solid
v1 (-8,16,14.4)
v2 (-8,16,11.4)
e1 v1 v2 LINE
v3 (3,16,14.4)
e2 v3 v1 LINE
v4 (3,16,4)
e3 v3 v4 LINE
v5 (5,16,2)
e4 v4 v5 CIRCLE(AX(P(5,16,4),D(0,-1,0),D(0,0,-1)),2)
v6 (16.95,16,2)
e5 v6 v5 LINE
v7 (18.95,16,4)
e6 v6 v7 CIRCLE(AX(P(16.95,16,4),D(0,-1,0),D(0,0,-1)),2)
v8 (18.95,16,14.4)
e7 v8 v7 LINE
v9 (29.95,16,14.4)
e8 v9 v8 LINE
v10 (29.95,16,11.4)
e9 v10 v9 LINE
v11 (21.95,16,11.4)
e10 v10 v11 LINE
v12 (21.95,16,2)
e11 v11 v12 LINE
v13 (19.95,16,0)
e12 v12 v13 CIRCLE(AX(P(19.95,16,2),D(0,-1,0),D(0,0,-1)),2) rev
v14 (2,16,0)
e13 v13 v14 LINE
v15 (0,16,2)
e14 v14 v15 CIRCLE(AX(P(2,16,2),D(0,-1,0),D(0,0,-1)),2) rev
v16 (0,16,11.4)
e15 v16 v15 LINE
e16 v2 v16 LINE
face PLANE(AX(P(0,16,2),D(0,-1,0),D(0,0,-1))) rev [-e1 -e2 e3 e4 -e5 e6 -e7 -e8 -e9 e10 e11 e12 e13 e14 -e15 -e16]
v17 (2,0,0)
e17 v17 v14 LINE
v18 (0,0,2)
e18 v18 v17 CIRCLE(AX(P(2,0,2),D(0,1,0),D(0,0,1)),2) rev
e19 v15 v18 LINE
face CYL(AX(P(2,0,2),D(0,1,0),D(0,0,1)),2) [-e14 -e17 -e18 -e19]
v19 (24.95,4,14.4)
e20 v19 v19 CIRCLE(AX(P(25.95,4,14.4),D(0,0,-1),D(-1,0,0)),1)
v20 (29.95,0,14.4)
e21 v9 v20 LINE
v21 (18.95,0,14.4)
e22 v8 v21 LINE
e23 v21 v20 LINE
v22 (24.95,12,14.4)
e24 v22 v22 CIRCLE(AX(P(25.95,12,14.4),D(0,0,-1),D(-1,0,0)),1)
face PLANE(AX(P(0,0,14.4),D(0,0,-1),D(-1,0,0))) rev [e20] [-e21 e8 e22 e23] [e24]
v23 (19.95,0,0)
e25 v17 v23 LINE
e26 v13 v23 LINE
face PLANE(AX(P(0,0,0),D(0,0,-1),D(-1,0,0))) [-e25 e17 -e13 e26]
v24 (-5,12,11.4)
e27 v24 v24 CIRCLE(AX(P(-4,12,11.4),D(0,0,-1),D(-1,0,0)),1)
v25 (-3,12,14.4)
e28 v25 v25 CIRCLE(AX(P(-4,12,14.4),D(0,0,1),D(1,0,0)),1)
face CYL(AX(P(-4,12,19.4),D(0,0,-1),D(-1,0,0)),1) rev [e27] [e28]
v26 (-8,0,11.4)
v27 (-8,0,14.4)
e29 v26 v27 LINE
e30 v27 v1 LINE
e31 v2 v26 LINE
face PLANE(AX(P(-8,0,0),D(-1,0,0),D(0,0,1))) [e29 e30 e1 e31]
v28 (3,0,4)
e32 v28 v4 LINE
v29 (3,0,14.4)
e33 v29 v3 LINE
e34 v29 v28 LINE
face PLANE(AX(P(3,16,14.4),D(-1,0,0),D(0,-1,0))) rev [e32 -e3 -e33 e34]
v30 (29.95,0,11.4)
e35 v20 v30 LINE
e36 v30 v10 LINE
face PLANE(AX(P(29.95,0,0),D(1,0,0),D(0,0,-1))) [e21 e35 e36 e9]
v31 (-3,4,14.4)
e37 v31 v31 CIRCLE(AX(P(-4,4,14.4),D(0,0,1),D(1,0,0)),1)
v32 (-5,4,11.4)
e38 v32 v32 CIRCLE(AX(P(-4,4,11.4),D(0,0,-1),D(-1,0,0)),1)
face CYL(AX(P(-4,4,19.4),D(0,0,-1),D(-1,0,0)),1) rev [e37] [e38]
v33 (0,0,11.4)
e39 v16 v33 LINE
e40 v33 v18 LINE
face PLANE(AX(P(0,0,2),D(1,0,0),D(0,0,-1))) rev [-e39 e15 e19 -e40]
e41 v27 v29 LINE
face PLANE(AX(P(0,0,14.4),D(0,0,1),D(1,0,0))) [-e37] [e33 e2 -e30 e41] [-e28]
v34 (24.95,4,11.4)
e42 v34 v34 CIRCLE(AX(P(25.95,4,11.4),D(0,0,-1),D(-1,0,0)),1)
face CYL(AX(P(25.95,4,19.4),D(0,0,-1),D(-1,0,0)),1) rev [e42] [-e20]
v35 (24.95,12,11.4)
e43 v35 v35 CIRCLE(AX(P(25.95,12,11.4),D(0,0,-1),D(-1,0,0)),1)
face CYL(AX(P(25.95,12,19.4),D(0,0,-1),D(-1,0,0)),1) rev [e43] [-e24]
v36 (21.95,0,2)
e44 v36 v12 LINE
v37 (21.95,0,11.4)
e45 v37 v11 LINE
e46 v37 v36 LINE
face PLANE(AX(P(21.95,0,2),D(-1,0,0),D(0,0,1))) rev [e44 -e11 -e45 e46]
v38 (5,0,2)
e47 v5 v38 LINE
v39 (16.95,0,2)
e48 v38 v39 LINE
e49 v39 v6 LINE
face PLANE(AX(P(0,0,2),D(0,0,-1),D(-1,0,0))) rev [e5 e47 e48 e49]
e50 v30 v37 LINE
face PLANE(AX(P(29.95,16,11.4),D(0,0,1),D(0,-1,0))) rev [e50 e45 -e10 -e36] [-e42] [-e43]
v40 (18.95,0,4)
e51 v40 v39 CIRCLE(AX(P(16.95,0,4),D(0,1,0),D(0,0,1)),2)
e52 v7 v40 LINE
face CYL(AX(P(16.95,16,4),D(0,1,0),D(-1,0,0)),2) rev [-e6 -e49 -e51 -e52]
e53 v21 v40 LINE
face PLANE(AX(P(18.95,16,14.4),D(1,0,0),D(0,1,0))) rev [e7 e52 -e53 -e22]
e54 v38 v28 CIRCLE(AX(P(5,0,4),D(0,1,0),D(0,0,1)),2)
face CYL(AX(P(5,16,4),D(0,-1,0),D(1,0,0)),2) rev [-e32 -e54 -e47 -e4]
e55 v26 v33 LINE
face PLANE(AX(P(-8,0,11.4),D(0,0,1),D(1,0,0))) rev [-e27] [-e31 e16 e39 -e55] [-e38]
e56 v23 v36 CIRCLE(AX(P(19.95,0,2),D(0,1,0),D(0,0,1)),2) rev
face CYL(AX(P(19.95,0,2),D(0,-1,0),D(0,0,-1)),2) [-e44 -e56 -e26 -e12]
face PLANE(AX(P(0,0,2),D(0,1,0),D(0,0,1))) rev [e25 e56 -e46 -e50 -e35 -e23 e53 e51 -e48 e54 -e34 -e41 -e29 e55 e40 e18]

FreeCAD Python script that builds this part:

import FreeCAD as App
import Part
import Sketcher
Q = App.Units.Quantity


def edges_at(feature, points):
    """Names of the edges that pass closest to the given points."""
    edges = feature.Shape.Edges
    near = lambda p: min(range(len(edges)), key=lambda i: edges[i].distToShape(Part.Vertex(*p))[0])
    return sorted({f"Edge{near(p) + 1}" for p in points})

doc = App.newDocument("Part")
body = doc.addObject("PartDesign::Body", "Body")

# Sketch on XY plane
sketch1 = doc.addObject("Sketcher::SketchObject", "Sketch")
body.addObject(sketch1)
sketch1.AttachmentSupport = (doc.XY_Plane, [""])
sketch1.MapMode = "FlatFace"
sketch1.addGeometry([
    Part.LineSegment(App.Vector(0, 16, 0), App.Vector(0, 0, 0)),
    Part.LineSegment(App.Vector(0, 0, 0), App.Vector(22, 0, 0)),
    Part.LineSegment(App.Vector(22, 0, 0), App.Vector(22, 16, 0)),
    Part.LineSegment(App.Vector(22, 16, 0), App.Vector(0, 16, 0)),
], False)
sketch1.addConstraint([
    Sketcher.Constraint("Coincident", 0, 2, 1, 1),
    Sketcher.Constraint("Coincident", 1, 2, 2, 1),
    Sketcher.Constraint("Coincident", 2, 2, 3, 1),
    Sketcher.Constraint("Coincident", 3, 2, 0, 1),
    Sketcher.Constraint("Vertical", 0),
    Sketcher.Constraint("Horizontal", 1),
    Sketcher.Constraint("Vertical", 2),
    Sketcher.Constraint("Horizontal", 3),
    Sketcher.Constraint("Coincident", 0, 2, -1, 1),
    Sketcher.Constraint("DistanceY", 0, 2, 0, 1, Q("16 mm")),
    Sketcher.Constraint("DistanceX", 1, 1, 1, 2, Q("21.95 mm")),
])
pad1 = doc.addObject("PartDesign::Pad", "Pad")
body.addObject(pad1)
pad1.Profile = sketch1
pad1.Length = 2

# Sketch on XY plane
sketch2 = doc.addObject("Sketcher::SketchObject", "Sketch001")
body.addObject(sketch2)
sketch2.AttachmentSupport = (doc.XY_Plane, [""])
sketch2.MapMode = "FlatFace"
sketch2.AttachmentOffset = App.Placement(App.Vector(0, 0, 2), App.Rotation())
sketch2.addGeometry([
    Part.LineSegment(App.Vector(0, 16, 0), App.Vector(0, 0, 0)),  # 0
    Part.LineSegment(App.Vector(0, 0, 0), App.Vector(3, 0, 0)),  # 1
    Part.LineSegment(App.Vector(3, 0, 0), App.Vector(3, 16, 0)),  # 2
    Part.LineSegment(App.Vector(3, 16, 0), App.Vector(0, 16, 0)),  # 3
    Part.LineSegment(App.Vector(18.9, 16, 0), App.Vector(18.9, 0, 0)),  # 4
    Part.LineSegment(App.Vector(18.9, 0, 0), App.Vector(21.9, 0, 0)),  # 5
    Part.LineSegment(App.Vector(21.9, 0, 0), App.Vector(21.9, 16, 0)),  # 6
    Part.LineSegment(App.Vector(21.9, 16, 0), App.Vector(18.9, 16, 0)),  # 7
], False)
sketch2.addConstraint([
    Sketcher.Constraint("Coincident", 0, 2, 1, 1),
    Sketcher.Constraint("Coincident", 1, 2, 2, 1),
    Sketcher.Constraint("Coincident", 2, 2, 3, 1),
    Sketcher.Constraint("Coincident", 3, 2, 0, 1),
    Sketcher.Constraint("Coincident", 4, 2, 5, 1),
    Sketcher.Constraint("Coincident", 5, 2, 6, 1),
    Sketcher.Constraint("Coincident", 6, 2, 7, 1),
    Sketcher.Constraint("Coincident", 7, 2, 4, 1),
    Sketcher.Constraint("Vertical", 0),
    Sketcher.Constraint("Horizontal", 1),
    Sketcher.Constraint("Vertical", 2),
    Sketcher.Constraint("Horizontal", 3),
    Sketcher.Constraint("Vertical", 4),
    Sketcher.Constraint("Horizontal", 5),
    Sketcher.Constraint("Vertical", 6),
    Sketcher.Constraint("Horizontal", 7),
    Sketcher.Constraint("Coincident", 0, 2, -1, 1),
    Sketcher.Constraint("PointOnObject", 4, 2, -1),
    Sketcher.Constraint("Horizontal", 3, 2, 6, 2),
    Sketcher.Constraint("Equal", 3, 5),
    Sketcher.Constraint("DistanceX", 1, 1, 1, 2, Q("3 mm")),
    Sketcher.Constraint("DistanceY", 0, 2, 0, 1, Q("16 mm")),
    Sketcher.Constraint("DistanceX", -1, 1, 4, 2, Q("18.95 mm")),
])
pad2 = doc.addObject("PartDesign::Pad", "Pad001")
body.addObject(pad2)
pad2.Profile = sketch2
pad2.Length = 12.4

# Sketch on YZ plane
sketch3 = doc.addObject("Sketcher::SketchObject", "Sketch002")
body.addObject(sketch3)
sketch3.AttachmentSupport = (doc.YZ_Plane, [""])
sketch3.MapMode = "FlatFace"
sketch3.AttachmentOffset = App.Placement(App.Vector(0, 0, 21.95), App.Rotation())
sketch3.addGeometry([
    Part.LineSegment(App.Vector(16, 14.4, 0), App.Vector(0, 14.4, 0)),
    Part.LineSegment(App.Vector(0, 14.4, 0), App.Vector(0, 11.4, 0)),
    Part.LineSegment(App.Vector(0, 11.4, 0), App.Vector(16, 11.4, 0)),
    Part.LineSegment(App.Vector(16, 11.4, 0), App.Vector(16, 14.4, 0)),
], False)
sketch3.addConstraint([
    Sketcher.Constraint("Coincident", 0, 2, 1, 1),
    Sketcher.Constraint("Coincident", 1, 2, 2, 1),
    Sketcher.Constraint("Coincident", 2, 2, 3, 1),
    Sketcher.Constraint("Coincident", 3, 2, 0, 1),
    Sketcher.Constraint("Horizontal", 0),
    Sketcher.Constraint("Vertical", 1),
    Sketcher.Constraint("Horizontal", 2),
    Sketcher.Constraint("Vertical", 3),
    Sketcher.Constraint("PointOnObject", 0, 2, -2),
    Sketcher.Constraint("DistanceX", 0, 2, 0, 1, Q("16 mm")),
    Sketcher.Constraint("DistanceY", 1, 2, 1, 1, Q("3 mm")),
    Sketcher.Constraint("DistanceY", -1, 1, 0, 2, Q("14.4 mm")),
])
pad3 = doc.addObject("PartDesign::Pad", "Pad002")
body.addObject(pad3)
pad3.Profile = sketch3
pad3.Length = 8

# Sketch on YZ plane
sketch4 = doc.addObject("Sketcher::SketchObject", "Sketch003")
body.addObject(sketch4)
sketch4.AttachmentSupport = (doc.YZ_Plane, [""])
sketch4.MapMode = "FlatFace"
sketch4.addGeometry([
    Part.LineSegment(App.Vector(16, 11.4, 0), App.Vector(0, 11.4, 0)),
    Part.LineSegment(App.Vector(0, 11.4, 0), App.Vector(0, 14.4, 0)),
    Part.LineSegment(App.Vector(0, 14.4, 0), App.Vector(16, 14.4, 0)),
    Part.LineSegment(App.Vector(16, 14.4, 0), App.Vector(16, 11.4, 0)),
], False)
sketch4.addConstraint([
    Sketcher.Constraint("Coincident", 0, 2, 1, 1),
    Sketcher.Constraint("Coincident", 1, 2, 2, 1),
    Sketcher.Constraint("Coincident", 2, 2, 3, 1),
    Sketcher.Constraint("Coincident", 3, 2, 0, 1),
    Sketcher.Constraint("Horizontal", 0),
    Sketcher.Constraint("Vertical", 1),
    Sketcher.Constraint("Horizontal", 2),
    Sketcher.Constraint("Vertical", 3),
    Sketcher.Constraint("PointOnObject", 0, 2, -2),
    Sketcher.Constraint("DistanceX", 0, 2, 0, 1, Q("16 mm")),
    Sketcher.Constraint("DistanceY", 1, 1, 1, 2, Q("3 mm")),
    Sketcher.Constraint("DistanceY", -1, 1, 0, 2, Q("11.4 mm")),
])
pad4 = doc.addObject("PartDesign::Pad", "Pad003")
body.addObject(pad4)
pad4.Profile = sketch4
pad4.Length = 8
pad4.Reversed = True

# Sketch on XY plane
sketch5 = doc.addObject("Sketcher::SketchObject", "Sketch004")
body.addObject(sketch5)
sketch5.AttachmentSupport = (doc.XY_Plane, [""])
sketch5.MapMode = "FlatFace"
sketch5.AttachmentOffset = App.Placement(App.Vector(0, 0, 11.4), App.Rotation())
sketch5.addGeometry([
    Part.Circle(App.Vector(-4, 4, 0), App.Vector(0, 0, 1), 1),
    Part.Circle(App.Vector(25.9, 4, 0), App.Vector(0, 0, 1), 1),
    Part.Circle(App.Vector(-4, 12, 0), App.Vector(0, 0, 1), 1),
    Part.Circle(App.Vector(25.9, 12, 0), App.Vector(0, 0, 1), 1),
], False)
sketch5.addConstraint([
    Sketcher.Constraint("Equal", 0, 1),
    Sketcher.Constraint("Equal", 1, 2),
    Sketcher.Constraint("Equal", 2, 3),
    Sketcher.Constraint("Horizontal", 0, 3, 1, 3),
    Sketcher.Constraint("Horizontal", 2, 3, 3, 3),
    Sketcher.Constraint("Vertical", 0, 3, 2, 3),
    Sketcher.Constraint("Vertical", 1, 3, 3, 3),
    Sketcher.Constraint("Diameter", 0, Q("2 mm")),
    Sketcher.Constraint("DistanceX", 0, 3, -1, 1, Q("4 mm")),
    Sketcher.Constraint("DistanceY", -1, 1, 0, 3, Q("4 mm")),
    Sketcher.Constraint("DistanceY", -1, 1, 2, 3, Q("12 mm")),
    Sketcher.Constraint("DistanceX", -1, 1, 1, 3, Q("25.95 mm")),
])
pocket1 = doc.addObject("PartDesign::Pocket", "Pocket")
body.addObject(pocket1)
pocket1.Profile = sketch5
pocket1.Length = 8
pocket1.Reversed = True
doc.recompute()

fillet = doc.addObject("PartDesign::Fillet", "Fillet")
body.addObject(fillet)
fillet.Base = (pocket1, edges_at(pocket1, [(3, 8, 2), (18.95, 8, 2)]))
fillet.Radius = 2
doc.recompute()

fillet2 = doc.addObject("PartDesign::Fillet", "Fillet001")
body.addObject(fillet2)
fillet2.Base = (fillet, edges_at(fillet, [(21.95, 8, 0), (0, 8, 0)]))
fillet2.Radius = 2

doc.recompute()
